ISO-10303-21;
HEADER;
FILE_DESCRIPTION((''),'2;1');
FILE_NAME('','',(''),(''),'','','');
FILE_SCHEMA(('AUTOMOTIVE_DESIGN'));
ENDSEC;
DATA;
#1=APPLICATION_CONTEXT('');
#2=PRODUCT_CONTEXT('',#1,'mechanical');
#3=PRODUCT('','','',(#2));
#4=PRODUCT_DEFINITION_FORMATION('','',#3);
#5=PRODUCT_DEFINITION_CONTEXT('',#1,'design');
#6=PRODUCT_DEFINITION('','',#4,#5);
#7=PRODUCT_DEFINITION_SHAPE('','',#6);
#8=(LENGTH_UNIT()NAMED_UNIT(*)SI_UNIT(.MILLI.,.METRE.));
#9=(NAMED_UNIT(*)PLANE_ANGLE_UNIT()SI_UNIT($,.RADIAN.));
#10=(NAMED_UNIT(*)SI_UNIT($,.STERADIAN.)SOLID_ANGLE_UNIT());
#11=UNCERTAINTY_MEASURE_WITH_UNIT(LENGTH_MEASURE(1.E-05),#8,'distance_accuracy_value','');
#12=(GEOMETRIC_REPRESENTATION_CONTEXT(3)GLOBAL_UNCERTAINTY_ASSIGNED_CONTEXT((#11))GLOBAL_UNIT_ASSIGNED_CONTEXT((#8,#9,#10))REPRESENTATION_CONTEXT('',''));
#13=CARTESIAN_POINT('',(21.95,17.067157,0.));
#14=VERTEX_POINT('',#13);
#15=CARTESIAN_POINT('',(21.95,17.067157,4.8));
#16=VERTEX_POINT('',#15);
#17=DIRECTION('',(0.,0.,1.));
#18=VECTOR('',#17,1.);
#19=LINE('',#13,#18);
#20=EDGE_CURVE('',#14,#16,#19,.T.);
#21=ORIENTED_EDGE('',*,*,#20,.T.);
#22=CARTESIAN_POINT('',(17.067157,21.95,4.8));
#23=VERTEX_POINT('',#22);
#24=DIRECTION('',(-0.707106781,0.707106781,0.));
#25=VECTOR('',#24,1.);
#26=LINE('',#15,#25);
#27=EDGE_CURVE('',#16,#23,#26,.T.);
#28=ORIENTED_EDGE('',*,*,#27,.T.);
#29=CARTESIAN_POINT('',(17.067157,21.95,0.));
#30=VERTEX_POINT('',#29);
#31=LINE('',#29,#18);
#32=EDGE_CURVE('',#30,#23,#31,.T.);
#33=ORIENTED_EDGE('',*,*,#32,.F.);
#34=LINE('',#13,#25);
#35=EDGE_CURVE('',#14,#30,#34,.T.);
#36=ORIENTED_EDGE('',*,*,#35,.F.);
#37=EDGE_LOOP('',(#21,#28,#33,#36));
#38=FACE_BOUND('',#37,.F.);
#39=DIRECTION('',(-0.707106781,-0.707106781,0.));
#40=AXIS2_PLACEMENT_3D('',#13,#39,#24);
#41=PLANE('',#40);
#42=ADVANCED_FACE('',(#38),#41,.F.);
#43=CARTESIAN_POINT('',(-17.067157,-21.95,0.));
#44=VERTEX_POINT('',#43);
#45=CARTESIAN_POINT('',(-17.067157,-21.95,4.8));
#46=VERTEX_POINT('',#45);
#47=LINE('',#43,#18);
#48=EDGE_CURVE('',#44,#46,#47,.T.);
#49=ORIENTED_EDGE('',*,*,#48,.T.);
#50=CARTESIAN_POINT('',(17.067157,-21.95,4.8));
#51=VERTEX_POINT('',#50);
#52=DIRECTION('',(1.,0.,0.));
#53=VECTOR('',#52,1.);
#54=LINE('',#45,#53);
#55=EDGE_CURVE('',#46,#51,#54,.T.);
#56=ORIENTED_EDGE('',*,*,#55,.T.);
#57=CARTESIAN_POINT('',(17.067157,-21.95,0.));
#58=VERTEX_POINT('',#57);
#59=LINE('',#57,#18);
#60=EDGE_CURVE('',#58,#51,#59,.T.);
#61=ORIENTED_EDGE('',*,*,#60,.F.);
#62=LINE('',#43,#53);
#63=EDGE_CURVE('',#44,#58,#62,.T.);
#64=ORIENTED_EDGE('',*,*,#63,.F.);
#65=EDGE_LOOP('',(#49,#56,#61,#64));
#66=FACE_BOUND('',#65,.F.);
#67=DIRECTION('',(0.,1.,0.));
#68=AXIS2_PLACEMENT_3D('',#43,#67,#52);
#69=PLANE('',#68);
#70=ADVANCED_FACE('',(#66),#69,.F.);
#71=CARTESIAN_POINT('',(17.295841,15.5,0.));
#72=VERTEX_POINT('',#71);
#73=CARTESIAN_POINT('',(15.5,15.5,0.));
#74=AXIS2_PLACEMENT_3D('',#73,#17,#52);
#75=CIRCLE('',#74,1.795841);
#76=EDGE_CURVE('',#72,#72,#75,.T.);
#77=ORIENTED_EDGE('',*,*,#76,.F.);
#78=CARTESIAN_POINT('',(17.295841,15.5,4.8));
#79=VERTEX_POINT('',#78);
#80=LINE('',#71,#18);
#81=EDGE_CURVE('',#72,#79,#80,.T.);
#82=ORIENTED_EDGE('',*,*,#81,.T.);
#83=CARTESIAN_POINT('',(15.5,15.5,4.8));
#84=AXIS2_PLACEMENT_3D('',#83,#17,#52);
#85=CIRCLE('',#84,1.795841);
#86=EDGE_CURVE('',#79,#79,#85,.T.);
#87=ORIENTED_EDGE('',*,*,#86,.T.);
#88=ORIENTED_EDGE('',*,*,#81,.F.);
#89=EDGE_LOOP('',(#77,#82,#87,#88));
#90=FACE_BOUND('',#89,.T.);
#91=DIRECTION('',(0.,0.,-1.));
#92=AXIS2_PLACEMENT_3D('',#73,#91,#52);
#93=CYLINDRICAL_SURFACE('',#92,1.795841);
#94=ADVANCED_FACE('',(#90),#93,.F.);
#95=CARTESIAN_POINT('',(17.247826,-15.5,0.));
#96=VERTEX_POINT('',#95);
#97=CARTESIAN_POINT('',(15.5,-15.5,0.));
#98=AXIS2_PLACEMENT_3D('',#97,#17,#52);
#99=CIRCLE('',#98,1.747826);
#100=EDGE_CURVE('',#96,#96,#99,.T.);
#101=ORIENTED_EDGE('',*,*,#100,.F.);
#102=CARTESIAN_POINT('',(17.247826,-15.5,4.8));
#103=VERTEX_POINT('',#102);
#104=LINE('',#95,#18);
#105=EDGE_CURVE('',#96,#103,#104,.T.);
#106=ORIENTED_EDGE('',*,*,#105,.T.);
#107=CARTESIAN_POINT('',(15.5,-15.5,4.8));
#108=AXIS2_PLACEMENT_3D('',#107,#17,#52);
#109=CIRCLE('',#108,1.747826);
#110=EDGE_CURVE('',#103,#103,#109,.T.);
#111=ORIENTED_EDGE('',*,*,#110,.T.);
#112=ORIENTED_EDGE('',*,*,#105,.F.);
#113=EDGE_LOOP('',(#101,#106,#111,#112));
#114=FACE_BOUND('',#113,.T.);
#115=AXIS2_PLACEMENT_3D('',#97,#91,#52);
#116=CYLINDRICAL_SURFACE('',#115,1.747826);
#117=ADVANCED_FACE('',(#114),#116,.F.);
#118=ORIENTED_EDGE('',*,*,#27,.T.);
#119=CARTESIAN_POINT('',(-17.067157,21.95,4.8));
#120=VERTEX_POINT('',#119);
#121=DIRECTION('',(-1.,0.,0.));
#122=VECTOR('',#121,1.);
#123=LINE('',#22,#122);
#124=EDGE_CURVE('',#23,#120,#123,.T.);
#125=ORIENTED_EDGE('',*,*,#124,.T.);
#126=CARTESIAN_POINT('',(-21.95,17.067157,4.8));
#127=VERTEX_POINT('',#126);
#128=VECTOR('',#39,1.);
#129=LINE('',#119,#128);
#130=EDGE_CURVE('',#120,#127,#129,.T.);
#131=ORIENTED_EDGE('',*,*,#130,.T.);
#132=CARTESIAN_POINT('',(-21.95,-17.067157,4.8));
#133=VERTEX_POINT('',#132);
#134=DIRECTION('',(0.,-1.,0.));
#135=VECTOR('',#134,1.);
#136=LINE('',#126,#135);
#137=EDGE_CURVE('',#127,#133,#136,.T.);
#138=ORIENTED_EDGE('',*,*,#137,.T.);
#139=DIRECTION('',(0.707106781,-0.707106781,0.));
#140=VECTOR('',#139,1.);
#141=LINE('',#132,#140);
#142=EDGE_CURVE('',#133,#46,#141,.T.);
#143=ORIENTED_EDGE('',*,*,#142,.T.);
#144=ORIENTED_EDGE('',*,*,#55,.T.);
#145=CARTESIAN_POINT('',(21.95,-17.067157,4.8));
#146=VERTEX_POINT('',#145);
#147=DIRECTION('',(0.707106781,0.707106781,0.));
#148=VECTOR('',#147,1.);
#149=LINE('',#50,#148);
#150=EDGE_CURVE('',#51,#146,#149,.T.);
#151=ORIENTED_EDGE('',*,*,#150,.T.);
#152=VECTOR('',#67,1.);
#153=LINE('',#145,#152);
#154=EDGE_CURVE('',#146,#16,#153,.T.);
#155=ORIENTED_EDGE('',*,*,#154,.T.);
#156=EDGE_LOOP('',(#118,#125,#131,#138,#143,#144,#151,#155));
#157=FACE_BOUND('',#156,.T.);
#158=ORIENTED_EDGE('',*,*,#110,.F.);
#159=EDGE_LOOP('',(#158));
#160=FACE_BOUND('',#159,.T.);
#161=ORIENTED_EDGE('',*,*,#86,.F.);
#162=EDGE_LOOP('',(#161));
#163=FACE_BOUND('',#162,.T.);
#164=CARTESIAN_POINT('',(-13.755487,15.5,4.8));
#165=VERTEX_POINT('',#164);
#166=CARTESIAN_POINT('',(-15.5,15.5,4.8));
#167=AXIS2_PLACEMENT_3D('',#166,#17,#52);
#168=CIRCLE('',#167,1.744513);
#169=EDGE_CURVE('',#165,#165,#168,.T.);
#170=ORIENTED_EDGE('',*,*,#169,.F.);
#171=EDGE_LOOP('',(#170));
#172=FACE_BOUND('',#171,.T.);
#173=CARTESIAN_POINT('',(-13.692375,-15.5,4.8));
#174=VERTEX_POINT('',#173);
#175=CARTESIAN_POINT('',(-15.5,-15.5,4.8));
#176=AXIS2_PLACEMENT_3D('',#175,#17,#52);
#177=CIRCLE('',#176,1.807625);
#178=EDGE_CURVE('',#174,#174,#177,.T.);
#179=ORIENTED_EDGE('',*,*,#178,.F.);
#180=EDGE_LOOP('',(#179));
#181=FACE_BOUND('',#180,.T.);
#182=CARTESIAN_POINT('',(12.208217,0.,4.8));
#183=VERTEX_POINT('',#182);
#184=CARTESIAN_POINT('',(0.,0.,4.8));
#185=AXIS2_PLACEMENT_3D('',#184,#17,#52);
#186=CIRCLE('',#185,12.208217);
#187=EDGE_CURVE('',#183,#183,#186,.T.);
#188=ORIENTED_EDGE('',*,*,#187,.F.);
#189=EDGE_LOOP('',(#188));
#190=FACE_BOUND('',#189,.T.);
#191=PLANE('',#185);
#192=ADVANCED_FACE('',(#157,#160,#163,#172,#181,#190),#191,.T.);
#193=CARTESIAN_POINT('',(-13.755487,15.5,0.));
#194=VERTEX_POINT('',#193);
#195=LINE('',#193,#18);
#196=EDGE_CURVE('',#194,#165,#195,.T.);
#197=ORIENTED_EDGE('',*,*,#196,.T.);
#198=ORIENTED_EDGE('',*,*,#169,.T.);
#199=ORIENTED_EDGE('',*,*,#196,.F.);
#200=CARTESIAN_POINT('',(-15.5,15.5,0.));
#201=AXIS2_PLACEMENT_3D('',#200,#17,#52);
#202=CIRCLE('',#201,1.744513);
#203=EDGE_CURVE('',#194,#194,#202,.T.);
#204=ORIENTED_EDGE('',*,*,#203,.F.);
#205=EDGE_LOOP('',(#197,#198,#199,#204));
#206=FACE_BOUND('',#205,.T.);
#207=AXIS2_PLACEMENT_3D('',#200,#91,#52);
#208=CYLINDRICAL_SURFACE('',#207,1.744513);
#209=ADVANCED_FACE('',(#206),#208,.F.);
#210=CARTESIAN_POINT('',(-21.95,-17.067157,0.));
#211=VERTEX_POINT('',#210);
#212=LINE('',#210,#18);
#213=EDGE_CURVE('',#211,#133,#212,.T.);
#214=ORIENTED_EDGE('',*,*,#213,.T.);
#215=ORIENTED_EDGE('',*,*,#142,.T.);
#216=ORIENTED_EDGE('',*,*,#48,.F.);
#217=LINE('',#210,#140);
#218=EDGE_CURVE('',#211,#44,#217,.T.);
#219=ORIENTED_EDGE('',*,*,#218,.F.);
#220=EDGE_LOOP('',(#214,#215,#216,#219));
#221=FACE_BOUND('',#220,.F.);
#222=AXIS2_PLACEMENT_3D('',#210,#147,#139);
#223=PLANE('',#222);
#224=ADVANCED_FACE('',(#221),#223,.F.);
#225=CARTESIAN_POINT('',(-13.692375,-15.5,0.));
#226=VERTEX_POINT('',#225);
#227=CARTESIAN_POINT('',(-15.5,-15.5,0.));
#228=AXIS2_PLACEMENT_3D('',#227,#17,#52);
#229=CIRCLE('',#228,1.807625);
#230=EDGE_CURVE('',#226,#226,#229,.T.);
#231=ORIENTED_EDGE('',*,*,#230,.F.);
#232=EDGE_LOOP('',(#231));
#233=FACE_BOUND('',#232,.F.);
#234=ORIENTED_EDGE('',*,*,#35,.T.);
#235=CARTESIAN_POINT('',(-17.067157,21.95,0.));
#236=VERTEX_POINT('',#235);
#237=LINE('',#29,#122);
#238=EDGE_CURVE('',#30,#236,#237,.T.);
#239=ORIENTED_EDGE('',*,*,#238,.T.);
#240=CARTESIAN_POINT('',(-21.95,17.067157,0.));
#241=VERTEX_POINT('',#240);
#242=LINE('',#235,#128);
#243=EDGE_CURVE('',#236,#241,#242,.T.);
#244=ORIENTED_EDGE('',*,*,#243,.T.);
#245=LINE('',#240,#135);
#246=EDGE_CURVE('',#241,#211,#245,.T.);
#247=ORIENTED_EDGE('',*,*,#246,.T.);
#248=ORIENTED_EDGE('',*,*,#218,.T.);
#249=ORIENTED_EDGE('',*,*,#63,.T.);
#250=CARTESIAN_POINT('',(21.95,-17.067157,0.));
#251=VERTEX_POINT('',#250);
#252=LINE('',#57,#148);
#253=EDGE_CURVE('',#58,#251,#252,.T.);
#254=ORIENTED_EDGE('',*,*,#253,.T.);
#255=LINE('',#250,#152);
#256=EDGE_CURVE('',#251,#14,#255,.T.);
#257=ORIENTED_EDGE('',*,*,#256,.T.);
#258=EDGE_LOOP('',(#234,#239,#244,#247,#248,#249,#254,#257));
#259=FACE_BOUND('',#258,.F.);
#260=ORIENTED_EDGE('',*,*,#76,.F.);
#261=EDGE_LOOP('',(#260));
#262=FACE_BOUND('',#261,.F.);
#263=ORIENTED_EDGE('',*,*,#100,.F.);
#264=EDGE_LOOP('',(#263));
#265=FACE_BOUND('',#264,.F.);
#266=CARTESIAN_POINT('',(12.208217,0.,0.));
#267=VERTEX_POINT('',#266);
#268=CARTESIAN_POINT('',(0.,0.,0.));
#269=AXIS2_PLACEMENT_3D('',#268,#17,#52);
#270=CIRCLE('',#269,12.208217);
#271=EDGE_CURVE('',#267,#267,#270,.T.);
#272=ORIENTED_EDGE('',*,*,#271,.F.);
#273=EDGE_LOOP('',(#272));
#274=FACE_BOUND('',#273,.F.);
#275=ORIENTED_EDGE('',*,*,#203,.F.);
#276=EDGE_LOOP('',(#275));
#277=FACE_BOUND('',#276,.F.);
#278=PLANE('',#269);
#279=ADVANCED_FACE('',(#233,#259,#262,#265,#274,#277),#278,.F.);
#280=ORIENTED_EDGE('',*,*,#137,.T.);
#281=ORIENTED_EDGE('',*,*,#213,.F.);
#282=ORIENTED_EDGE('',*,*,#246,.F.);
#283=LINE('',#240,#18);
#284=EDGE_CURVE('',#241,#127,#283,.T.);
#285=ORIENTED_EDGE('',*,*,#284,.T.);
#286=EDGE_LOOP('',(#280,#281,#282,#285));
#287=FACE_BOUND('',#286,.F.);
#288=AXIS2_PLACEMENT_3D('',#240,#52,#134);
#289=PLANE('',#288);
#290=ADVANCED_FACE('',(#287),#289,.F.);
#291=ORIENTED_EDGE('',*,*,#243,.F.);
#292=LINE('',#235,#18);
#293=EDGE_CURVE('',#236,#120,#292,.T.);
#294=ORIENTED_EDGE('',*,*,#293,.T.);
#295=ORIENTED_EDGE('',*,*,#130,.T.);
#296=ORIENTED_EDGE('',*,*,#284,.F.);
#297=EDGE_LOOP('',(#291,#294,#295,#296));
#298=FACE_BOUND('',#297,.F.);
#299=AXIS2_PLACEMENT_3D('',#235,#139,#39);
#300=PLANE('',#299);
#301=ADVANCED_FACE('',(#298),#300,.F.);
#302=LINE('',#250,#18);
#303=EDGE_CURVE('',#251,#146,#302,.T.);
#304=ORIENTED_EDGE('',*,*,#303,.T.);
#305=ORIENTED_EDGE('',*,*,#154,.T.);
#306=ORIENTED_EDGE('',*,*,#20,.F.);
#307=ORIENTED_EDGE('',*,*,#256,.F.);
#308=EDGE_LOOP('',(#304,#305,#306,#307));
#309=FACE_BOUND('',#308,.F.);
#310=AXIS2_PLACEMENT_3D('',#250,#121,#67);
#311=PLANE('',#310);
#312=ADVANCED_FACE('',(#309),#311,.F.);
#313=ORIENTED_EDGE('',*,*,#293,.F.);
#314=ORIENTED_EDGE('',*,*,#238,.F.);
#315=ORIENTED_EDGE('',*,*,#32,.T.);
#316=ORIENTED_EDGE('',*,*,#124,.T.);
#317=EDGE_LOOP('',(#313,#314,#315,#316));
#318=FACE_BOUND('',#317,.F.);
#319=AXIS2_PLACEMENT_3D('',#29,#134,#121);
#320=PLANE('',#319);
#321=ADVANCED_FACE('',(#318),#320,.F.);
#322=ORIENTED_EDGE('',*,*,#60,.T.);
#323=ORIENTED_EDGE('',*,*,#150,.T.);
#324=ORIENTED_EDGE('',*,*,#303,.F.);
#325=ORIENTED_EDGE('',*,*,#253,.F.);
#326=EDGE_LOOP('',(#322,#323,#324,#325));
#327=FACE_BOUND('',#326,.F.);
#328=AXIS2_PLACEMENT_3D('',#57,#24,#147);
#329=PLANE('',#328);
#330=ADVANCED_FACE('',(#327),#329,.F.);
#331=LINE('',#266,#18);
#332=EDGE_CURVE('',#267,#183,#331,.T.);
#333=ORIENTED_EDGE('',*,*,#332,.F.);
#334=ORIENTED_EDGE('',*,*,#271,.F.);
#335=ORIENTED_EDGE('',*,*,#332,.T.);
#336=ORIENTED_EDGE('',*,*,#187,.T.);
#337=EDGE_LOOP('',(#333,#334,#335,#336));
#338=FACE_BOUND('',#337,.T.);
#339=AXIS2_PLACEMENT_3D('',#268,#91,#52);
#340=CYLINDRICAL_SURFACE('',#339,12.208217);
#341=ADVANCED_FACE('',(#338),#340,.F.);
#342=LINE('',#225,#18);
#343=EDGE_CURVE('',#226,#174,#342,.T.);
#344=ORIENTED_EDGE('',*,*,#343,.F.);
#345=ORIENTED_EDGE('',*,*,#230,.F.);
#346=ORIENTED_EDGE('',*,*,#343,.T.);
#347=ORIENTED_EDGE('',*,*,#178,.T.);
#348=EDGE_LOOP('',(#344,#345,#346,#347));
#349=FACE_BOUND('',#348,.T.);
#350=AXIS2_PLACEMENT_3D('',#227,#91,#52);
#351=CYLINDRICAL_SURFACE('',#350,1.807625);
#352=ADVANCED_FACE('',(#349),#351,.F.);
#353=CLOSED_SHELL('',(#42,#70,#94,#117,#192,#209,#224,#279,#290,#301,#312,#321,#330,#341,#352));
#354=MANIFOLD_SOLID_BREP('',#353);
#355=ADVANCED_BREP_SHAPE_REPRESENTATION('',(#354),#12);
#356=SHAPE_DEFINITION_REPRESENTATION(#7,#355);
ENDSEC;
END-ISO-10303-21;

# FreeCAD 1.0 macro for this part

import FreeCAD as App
import Part
import Sketcher

V = App.Vector


def add_polygon(sketch, points):
    """Adds a closed chain of lines whose ends are joined by coincident constraints."""
    first, n = sketch.GeometryCount, len(points)
    for a, b in zip(points, points[1:] + points[:1]):
        sketch.addGeometry(Part.LineSegment(App.Vector(*a, 0), App.Vector(*b, 0)), False)
    for i in range(n):
        sketch.addConstraint(Sketcher.Constraint("Coincident", first + i, 2, first + (i + 1) % n, 1))

doc = App.newDocument("Part")
body = doc.addObject("PartDesign::Body", "Body")

sketch1 = doc.addObject("Sketcher::SketchObject", "Sketch")
body.addObject(sketch1)
sketch1.AttachmentSupport = (doc.XY_Plane, [""])
sketch1.MapMode = "FlatFace"
add_polygon(sketch1, [(21.95, -17.067157), (21.95, 17.067157), (17.067157, 21.95), (-17.067157, 21.95), (-21.95, 17.067157), (-21.95, -17.067157), (-17.067157, -21.95), (17.067157, -21.95)])
sketch1.addGeometry(Part.Circle(V(-15.5, -15.5, 0), V(0, 0, 1), 1.807625), False)
sketch1.addGeometry(Part.Circle(V(15.5, -15.5, 0), V(0, 0, 1), 1.747826), False)
sketch1.addGeometry(Part.Circle(V(-15.5, 15.5, 0), V(0, 0, 1), 1.744513), False)
sketch1.addGeometry(Part.Circle(V(0, 0, 0), V(0, 0, 1), 12.208217), False)
sketch1.addGeometry(Part.Circle(V(15.5, 15.5, 0), V(0, 0, 1), 1.795841), False)
sketch1.addConstraint(Sketcher.Constraint("Vertical", 0))
sketch1.addConstraint(Sketcher.Constraint("Horizontal", 2))
sketch1.addConstraint(Sketcher.Constraint("Vertical", 4))
sketch1.addConstraint(Sketcher.Constraint("Horizontal", 6))
sketch1.addConstraint(Sketcher.Constraint("Coincident", 11, 3, -1, 1))
sketch1.addConstraint(Sketcher.Constraint("Symmetric", 9, 3, 10, 3, -1, 1))
sketch1.addConstraint(Sketcher.Constraint("Symmetric", 8, 3, 12, 3, -1, 1))
sketch1.addConstraint(Sketcher.Constraint("Symmetric", 0, 2, 4, 2, -1, 1))
sketch1.addConstraint(Sketcher.Constraint("Symmetric", 1, 2, 5, 2, -1, 1))
sketch1.addConstraint(Sketcher.Constraint("Symmetric", 8, 3, 9, 3, -2))
sketch1.addConstraint(Sketcher.Constraint("Perpendicular", 1, 3))
sketch1.addConstraint(Sketcher.Constraint("Perpendicular", 5, 7))
sketch1.addConstraint(Sketcher.Constraint("Horizontal", 0, 2, 3, 2))
sketch1.addConstraint(Sketcher.Constraint("Horizontal", 4, 2, 7, 2))
sketch1.addConstraint(Sketcher.Constraint("Vertical", 2, 2, 5, 2))
sketch1.addConstraint(Sketcher.Constraint("Equal", 6, 0))
sketch1.addConstraint(Sketcher.Constraint("DistanceX", 8, 3, 9, 3, 31.0))
sketch1.addConstraint(Sketcher.Constraint("DistanceY", 8, 3, 10, 3, 31.0))
sketch1.addConstraint(Sketcher.Constraint("Diameter", 8, 3.61525))
sketch1.addConstraint(Sketcher.Constraint("Diameter", 12, 3.591682))
sketch1.addConstraint(Sketcher.Constraint("DistanceX", -1, 1, 0, 2, 21.95))
sketch1.addConstraint(Sketcher.Constraint("Diameter", 9, 3.495652))
sketch1.addConstraint(Sketcher.Constraint("Diameter", 10, 3.489026))
sketch1.addConstraint(Sketcher.Constraint("Diameter", 11, 24.416434))
sketch1.addConstraint(Sketcher.Constraint("DistanceX", 2, 2, 2, 1, 34.134314))
pad1 = doc.addObject("PartDesign::Pad", "Pad")
body.addObject(pad1)
pad1.Profile = sketch1
pad1.Length = 4.8

doc.recompute()
